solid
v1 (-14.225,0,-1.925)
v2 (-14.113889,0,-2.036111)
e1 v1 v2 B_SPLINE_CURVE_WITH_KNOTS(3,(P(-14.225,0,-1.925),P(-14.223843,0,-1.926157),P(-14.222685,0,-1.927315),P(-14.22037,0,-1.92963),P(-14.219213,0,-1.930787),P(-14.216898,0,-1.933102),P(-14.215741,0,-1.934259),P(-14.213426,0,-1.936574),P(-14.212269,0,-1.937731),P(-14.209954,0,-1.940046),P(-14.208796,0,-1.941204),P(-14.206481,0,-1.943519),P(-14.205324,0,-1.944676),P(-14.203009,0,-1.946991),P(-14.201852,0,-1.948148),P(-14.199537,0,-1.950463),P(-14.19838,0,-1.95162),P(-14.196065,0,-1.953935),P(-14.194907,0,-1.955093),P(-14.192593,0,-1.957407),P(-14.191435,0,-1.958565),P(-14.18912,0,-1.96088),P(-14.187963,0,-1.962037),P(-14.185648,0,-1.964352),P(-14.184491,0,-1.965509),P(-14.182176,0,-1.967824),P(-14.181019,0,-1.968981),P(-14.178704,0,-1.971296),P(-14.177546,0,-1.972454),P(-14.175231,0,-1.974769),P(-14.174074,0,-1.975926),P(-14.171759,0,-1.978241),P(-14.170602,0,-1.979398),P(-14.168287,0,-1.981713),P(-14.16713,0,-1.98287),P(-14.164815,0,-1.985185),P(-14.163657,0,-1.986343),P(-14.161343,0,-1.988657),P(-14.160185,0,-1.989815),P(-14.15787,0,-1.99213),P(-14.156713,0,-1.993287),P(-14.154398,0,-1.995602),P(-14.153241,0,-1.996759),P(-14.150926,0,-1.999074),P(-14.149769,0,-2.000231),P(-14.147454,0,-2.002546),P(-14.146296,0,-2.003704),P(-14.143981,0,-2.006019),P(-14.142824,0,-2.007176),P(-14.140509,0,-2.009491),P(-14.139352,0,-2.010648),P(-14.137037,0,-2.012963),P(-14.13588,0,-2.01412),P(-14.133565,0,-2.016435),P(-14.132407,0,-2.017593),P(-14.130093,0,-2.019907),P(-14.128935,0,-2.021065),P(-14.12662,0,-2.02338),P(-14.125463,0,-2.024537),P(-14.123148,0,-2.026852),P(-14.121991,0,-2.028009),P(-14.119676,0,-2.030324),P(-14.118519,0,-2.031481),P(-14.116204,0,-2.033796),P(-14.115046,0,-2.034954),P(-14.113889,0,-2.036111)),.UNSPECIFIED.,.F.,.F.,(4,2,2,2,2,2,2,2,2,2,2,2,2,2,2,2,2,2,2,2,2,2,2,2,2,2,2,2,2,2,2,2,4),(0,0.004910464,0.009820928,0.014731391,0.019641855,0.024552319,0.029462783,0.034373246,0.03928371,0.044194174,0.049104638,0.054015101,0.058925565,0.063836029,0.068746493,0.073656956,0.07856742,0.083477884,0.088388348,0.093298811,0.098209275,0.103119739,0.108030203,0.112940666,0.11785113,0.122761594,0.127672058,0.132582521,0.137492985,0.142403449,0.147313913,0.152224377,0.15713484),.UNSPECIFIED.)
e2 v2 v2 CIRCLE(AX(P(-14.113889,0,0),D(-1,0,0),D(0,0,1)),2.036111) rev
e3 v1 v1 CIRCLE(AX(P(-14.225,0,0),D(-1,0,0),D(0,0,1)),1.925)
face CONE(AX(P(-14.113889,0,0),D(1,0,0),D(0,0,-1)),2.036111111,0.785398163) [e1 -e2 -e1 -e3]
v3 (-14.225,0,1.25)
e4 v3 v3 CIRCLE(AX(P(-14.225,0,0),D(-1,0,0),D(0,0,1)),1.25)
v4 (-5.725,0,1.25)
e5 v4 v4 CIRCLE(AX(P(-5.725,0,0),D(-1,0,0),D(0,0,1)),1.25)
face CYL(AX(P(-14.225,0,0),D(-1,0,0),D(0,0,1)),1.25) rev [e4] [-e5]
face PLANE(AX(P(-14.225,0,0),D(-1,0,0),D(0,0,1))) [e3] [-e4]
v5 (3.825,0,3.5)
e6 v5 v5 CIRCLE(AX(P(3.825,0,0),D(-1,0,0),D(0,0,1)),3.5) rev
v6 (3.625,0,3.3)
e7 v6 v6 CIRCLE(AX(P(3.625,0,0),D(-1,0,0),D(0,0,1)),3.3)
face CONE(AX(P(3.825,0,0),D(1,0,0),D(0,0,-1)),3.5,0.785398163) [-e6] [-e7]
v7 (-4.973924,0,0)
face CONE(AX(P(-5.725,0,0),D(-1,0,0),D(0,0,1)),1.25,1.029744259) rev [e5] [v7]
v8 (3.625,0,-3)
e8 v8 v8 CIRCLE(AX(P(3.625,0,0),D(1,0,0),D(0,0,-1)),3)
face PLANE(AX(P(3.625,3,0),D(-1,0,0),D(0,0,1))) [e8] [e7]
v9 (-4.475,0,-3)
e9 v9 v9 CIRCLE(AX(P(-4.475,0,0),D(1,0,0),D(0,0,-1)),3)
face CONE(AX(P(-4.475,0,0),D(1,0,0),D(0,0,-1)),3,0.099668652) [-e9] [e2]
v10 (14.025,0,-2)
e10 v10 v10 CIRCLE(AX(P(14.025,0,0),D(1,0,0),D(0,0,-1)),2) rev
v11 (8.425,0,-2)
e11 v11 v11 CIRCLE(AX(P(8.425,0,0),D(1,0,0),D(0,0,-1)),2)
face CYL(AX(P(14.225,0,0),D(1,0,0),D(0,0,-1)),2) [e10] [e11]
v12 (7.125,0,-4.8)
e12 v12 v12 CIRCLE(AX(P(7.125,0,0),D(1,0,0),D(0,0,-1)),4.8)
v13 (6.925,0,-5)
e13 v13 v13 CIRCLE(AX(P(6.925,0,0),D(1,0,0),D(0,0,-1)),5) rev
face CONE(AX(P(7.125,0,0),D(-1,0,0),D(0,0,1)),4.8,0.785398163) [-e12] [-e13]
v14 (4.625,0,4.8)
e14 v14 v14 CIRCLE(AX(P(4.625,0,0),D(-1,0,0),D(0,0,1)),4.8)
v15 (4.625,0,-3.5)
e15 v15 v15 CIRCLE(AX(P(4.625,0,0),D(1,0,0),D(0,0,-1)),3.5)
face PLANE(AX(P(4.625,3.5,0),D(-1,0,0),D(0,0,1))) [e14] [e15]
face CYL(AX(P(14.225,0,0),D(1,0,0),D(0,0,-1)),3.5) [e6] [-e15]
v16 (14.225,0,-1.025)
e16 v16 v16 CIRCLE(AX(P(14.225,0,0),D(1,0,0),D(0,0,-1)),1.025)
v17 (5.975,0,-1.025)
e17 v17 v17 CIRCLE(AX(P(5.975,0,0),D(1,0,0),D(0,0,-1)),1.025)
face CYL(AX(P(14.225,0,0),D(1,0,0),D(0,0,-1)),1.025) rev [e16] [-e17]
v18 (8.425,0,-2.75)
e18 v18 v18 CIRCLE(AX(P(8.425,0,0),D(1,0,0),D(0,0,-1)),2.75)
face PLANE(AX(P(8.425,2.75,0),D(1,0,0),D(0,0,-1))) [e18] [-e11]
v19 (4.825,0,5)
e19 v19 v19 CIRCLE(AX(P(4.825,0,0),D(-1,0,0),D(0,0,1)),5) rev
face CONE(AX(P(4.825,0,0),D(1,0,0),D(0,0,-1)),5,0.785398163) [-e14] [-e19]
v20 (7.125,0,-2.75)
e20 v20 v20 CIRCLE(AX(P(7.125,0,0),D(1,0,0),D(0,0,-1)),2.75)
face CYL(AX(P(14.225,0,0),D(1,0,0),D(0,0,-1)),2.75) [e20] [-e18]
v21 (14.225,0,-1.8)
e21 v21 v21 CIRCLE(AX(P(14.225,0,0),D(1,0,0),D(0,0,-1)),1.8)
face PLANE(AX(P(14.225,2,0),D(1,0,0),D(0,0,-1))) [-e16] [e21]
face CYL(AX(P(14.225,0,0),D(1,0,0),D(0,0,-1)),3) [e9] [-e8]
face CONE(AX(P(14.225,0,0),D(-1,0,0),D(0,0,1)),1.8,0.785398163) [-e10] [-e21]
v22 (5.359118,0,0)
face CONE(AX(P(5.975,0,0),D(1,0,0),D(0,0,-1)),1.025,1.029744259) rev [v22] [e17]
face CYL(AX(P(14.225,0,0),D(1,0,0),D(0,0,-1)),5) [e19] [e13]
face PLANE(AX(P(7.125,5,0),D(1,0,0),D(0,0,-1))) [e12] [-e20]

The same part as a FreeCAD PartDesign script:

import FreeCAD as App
import Part
import Sketcher

V = App.Vector


def edges_at(feature, points):
    """Names of the edges that pass closest to the given points."""
    edges = feature.Shape.Edges
    near = lambda p: min(range(len(edges)), key=lambda i: edges[i].distToShape(Part.Vertex(*p))[0])
    return sorted({f"Edge{near(p) + 1}" for p in points})

doc = App.newDocument("Part")
body = doc.addObject("PartDesign::Body", "Body")

# Sketch on XY plane
sketch1 = body.newObject("Sketcher::SketchObject", "Sketch")
sketch1.AttachmentSupport = (doc.getObject("XY_Plane"), [""])
sketch1.MapMode = "FlatFace"
sketch1.addGeometry(Part.LineSegment(V(-14.2, 2, 0), V(-14.2, 0, 0)), False)
sketch1.addGeometry(Part.LineSegment(V(-14.2, 0, 0), V(14.2, 0, 0)), False)
sketch1.addGeometry(Part.LineSegment(V(14.2, 0, 0), V(14.2, 2, 0)), False)
sketch1.addGeometry(Part.LineSegment(V(14.2, 2, 0), V(8.4, 2, 0)), False)
sketch1.addGeometry(Part.LineSegment(V(8.4, 2, 0), V(8.4, 2.8, 0)), False)
sketch1.addGeometry(Part.LineSegment(V(8.4, 2.8, 0), V(7.1, 2.8, 0)), False)
sketch1.addGeometry(Part.LineSegment(V(7.1, 2.8, 0), V(7.1, 5, 0)), False)
sketch1.addGeometry(Part.LineSegment(V(7.1, 5, 0), V(4.6, 5, 0)), False)
sketch1.addGeometry(Part.LineSegment(V(4.6, 5, 0), V(4.6, 3.5, 0)), False)
sketch1.addGeometry(Part.LineSegment(V(4.6, 3.5, 0), V(3.6, 3.5, 0)), False)
sketch1.addGeometry(Part.LineSegment(V(3.6, 3.5, 0), V(3.6, 3, 0)), False)
sketch1.addGeometry(Part.LineSegment(V(3.6, 3, 0), V(-4.5, 3, 0)), False)
sketch1.addGeometry(Part.LineSegment(V(-4.5, 3, 0), V(-14.2, 2, 0)), False)
sketch1.addConstraint(Sketcher.Constraint("Coincident", 0, 2, 1, 1))
sketch1.addConstraint(Sketcher.Constraint("Coincident", 1, 2, 2, 1))
sketch1.addConstraint(Sketcher.Constraint("Coincident", 2, 2, 3, 1))
sketch1.addConstraint(Sketcher.Constraint("Coincident", 3, 2, 4, 1))
sketch1.addConstraint(Sketcher.Constraint("Coincident", 4, 2, 5, 1))
sketch1.addConstraint(Sketcher.Constraint("Coincident", 5, 2, 6, 1))
sketch1.addConstraint(Sketcher.Constraint("Coincident", 6, 2, 7, 1))
sketch1.addConstraint(Sketcher.Constraint("Coincident", 7, 2, 8, 1))
sketch1.addConstraint(Sketcher.Constraint("Coincident", 8, 2, 9, 1))
sketch1.addConstraint(Sketcher.Constraint("Coincident", 9, 2, 10, 1))
sketch1.addConstraint(Sketcher.Constraint("Coincident", 10, 2, 11, 1))
sketch1.addConstraint(Sketcher.Constraint("Coincident", 11, 2, 12, 1))
sketch1.addConstraint(Sketcher.Constraint("Coincident", 12, 2, 0, 1))
sketch1.addConstraint(Sketcher.Constraint("Vertical", 0))
sketch1.addConstraint(Sketcher.Constraint("Horizontal", 1))
sketch1.addConstraint(Sketcher.Constraint("Vertical", 2))
sketch1.addConstraint(Sketcher.Constraint("Horizontal", 3))
sketch1.addConstraint(Sketcher.Constraint("Vertical", 4))
sketch1.addConstraint(Sketcher.Constraint("Horizontal", 5))
sketch1.addConstraint(Sketcher.Constraint("Vertical", 6))
sketch1.addConstraint(Sketcher.Constraint("Horizontal", 7))
sketch1.addConstraint(Sketcher.Constraint("Vertical", 8))
sketch1.addConstraint(Sketcher.Constraint("Horizontal", 9))
sketch1.addConstraint(Sketcher.Constraint("Vertical", 10))
sketch1.addConstraint(Sketcher.Constraint("Horizontal", 11))
sketch1.addConstraint(Sketcher.Constraint("Symmetric", 0, 2, 1, 2, -1, 1))
sketch1.addConstraint(Sketcher.Constraint("DistanceX", 9, 2, 9, 1, 1.0))
sketch1.addConstraint(Sketcher.Constraint("DistanceY", 2, 1, 2, 2, 2.0))
sketch1.addConstraint(Sketcher.Constraint("DistanceX", 3, 2, 3, 1, 5.8))
sketch1.addConstraint(Sketcher.Constraint("DistanceX", 5, 2, 5, 1, 1.3))
sketch1.addConstraint(Sketcher.Constraint("DistanceX", 7, 2, 7, 1, 2.5))
sketch1.addConstraint(Sketcher.Constraint("DistanceX", 11, 2, 11, 1, 8.1))
sketch1.addConstraint(Sketcher.Constraint("DistanceY", 8, 2, 8, 1, 1.5))
sketch1.addConstraint(Sketcher.Constraint("DistanceY", 10, 2, 10, 1, 0.5))
sketch1.addConstraint(Sketcher.Constraint("DistanceY", -1, 1, 6, 2, 5.0))
sketch1.addConstraint(Sketcher.Constraint("DistanceX", 1, 1, 1, 2, 28.45))
sketch1.addConstraint(Sketcher.Constraint("DistanceY", 4, 1, 4, 2, 0.75))
sketch1.addConstraint(Sketcher.Constraint("DistanceY", 0, 2, 0, 1, 2.025))
revolution = body.newObject("PartDesign::Revolution", "Revolution")
revolution.Profile = sketch1
revolution.ReferenceAxis = (sketch1, ["H_Axis"])
revolution.Angle = 360
doc.recompute()

chamfer = body.newObject("PartDesign::Chamfer", "Chamfer")
chamfer.Base = (revolution, edges_at(revolution, [(-14.225, 0, 2.025)]))
chamfer.ChamferType = "Two distances"
chamfer.Size = 0.1
chamfer.Size2 = 0.111665
doc.recompute()

chamfer2 = body.newObject("PartDesign::Chamfer", "Chamfer001")
chamfer2.Base = (chamfer, edges_at(chamfer, [(3.625, 0, 3.5)]))
chamfer2.Size = 0.2
doc.recompute()

chamfer3 = body.newObject("PartDesign::Chamfer", "Chamfer002")
chamfer3.Base = (chamfer2, edges_at(chamfer2, [(7.125, 0, 5), (4.625, 0, 5), (14.225, 0, 2)]))
chamfer3.Size = 0.2

# Sketch on YZ plane
sketch2 = body.newObject("Sketcher::SketchObject", "Sketch001")
sketch2.AttachmentSupport = (doc.getObject("YZ_Plane"), [""])
sketch2.MapMode = "FlatFace"
sketch2.AttachmentOffset = App.Placement(V(0, 0, -14.225), App.Rotation())
sketch2.addGeometry(Part.Circle(V(0, 0, 0), V(0, 0, 1), 1.2), False)
sketch2.addConstraint(Sketcher.Constraint("Coincident", 0, 3, -1, 1))
sketch2.addConstraint(Sketcher.Constraint("Diameter", 0, 2.5))
doc.recompute()
hole = body.newObject("PartDesign::Hole", "Hole")
hole.Profile = sketch2
hole.ThreadType = "None"
hole.Diameter = 2.5
hole.DepthType = "Dimension"
hole.Depth = 8.5
hole.DrillPoint = "Angled"
hole.DrillPointAngle = 118
hole.Reversed = True

# Sketch on YZ plane
sketch3 = body.newObject("Sketcher::SketchObject", "Sketch002")
sketch3.AttachmentSupport = (doc.getObject("YZ_Plane"), [""])
sketch3.MapMode = "FlatFace"
sketch3.AttachmentOffset = App.Placement(V(0, 0, 14.225), App.Rotation())
sketch3.addGeometry(Part.Circle(V(0, 0, 0), V(0, 0, 1), 1), False)
sketch3.addConstraint(Sketcher.Constraint("Coincident", 0, 3, -1, 1))
sketch3.addConstraint(Sketcher.Constraint("Diameter", 0, 2.05))
doc.recompute()
hole2 = body.newObject("PartDesign::Hole", "Hole001")
hole2.Profile = sketch3
hole2.ThreadType = "None"
hole2.Diameter = 2.05
hole2.DepthType = "Dimension"
hole2.Depth = 8.25
hole2.DrillPoint = "Angled"
hole2.DrillPointAngle = 118

doc.recompute()
